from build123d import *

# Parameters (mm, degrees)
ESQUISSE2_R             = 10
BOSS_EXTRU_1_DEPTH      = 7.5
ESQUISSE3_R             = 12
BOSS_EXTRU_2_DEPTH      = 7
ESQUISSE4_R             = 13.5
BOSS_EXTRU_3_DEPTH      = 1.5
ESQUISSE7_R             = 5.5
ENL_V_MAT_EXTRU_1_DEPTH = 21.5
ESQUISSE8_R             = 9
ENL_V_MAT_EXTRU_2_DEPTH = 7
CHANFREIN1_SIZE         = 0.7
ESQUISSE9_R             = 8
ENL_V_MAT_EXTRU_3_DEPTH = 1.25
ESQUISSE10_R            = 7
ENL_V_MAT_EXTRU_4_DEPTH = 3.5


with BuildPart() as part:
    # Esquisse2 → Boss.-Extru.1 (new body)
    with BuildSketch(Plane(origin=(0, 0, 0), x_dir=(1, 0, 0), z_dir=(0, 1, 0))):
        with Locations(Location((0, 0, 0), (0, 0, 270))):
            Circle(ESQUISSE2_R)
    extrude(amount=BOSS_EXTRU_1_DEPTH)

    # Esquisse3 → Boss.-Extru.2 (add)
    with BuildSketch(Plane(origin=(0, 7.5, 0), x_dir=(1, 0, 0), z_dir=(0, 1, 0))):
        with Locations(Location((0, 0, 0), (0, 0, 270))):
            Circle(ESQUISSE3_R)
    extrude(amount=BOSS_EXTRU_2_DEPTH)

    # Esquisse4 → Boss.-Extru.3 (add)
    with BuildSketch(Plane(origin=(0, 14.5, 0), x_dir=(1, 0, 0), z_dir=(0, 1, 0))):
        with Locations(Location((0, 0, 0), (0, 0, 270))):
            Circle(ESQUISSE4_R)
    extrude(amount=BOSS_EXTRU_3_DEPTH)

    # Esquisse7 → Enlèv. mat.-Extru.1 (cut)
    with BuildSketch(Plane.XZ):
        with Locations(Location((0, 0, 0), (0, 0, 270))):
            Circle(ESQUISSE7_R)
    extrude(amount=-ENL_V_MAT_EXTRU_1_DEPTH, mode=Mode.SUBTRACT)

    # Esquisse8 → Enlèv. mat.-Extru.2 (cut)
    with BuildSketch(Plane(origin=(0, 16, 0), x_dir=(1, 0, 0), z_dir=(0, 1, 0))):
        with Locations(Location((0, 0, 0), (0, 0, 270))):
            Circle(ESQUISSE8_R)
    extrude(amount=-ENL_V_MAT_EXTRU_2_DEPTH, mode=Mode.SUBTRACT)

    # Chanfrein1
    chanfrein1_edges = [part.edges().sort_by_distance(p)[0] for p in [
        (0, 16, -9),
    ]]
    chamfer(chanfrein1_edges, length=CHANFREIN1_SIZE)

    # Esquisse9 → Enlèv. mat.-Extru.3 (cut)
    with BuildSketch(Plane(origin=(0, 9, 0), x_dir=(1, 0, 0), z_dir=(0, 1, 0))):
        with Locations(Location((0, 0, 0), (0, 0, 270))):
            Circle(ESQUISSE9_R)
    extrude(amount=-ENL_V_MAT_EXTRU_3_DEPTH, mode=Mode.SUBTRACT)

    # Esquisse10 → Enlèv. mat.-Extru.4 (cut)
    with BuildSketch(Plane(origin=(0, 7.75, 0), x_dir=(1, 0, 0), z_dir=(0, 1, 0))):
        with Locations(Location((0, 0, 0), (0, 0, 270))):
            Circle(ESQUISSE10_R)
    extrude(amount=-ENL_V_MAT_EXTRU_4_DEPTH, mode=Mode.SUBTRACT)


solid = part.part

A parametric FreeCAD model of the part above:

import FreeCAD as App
import Part
import Sketcher

V = App.Vector
Q = App.Units.Quantity


def edges_at(feature, points):
    """Names of the edges that pass closest to the given points."""
    edges = feature.Shape.Edges
    near = lambda p: min(range(len(edges)), key=lambda i: edges[i].distToShape(Part.Vertex(*p))[0])
    return sorted({f"Edge{near(p) + 1}" for p in points})

doc = App.newDocument("Part")
body = doc.addObject("PartDesign::Body", "Body")

# Sketch on XZ plane
sketch1 = body.newObject("Sketcher::SketchObject", "Sketch")
sketch1.AttachmentSupport = (doc.getObject("XZ_Plane"), [""])
sketch1.MapMode = "FlatFace"
sketch1.addGeometry(Part.Circle(V(0, 0, 0), V(0, 0, 1), 10), False)
sketch1.addConstraint(Sketcher.Constraint("Coincident", 0, 3, -1, 1))
sketch1.addConstraint(Sketcher.Constraint("Diameter", 0, Q("20 mm")))
pad1 = body.newObject("PartDesign::Pad", "Pad")
pad1.Profile = sketch1
pad1.Length = 7.5
pad1.Reversed = True

# Sketch on XZ plane
sketch2 = body.newObject("Sketcher::SketchObject", "Sketch001")
sketch2.AttachmentSupport = (doc.getObject("XZ_Plane"), [""])
sketch2.MapMode = "FlatFace"
sketch2.AttachmentOffset = App.Placement(V(0, 0, -7.5), App.Rotation())
sketch2.addGeometry(Part.Circle(V(0, 0, 0), V(0, 0, 1), 12), False)
sketch2.addConstraint(Sketcher.Constraint("Coincident", 0, 3, -1, 1))
sketch2.addConstraint(Sketcher.Constraint("Diameter", 0, Q("24 mm")))
pad2 = body.newObject("PartDesign::Pad", "Pad001")
pad2.Profile = sketch2
pad2.Length = 7
pad2.Reversed = True

# Sketch on XZ plane
sketch3 = body.newObject("Sketcher::SketchObject", "Sketch002")
sketch3.AttachmentSupport = (doc.getObject("XZ_Plane"), [""])
sketch3.MapMode = "FlatFace"
sketch3.AttachmentOffset = App.Placement(V(0, 0, -14.5), App.Rotation())
sketch3.addGeometry(Part.Circle(V(0, 0, 0), V(0, 0, 1), 13.5), False)
sketch3.addConstraint(Sketcher.Constraint("Coincident", 0, 3, -1, 1))
sketch3.addConstraint(Sketcher.Constraint("Diameter", 0, Q("27 mm")))
pad3 = body.newObject("PartDesign::Pad", "Pad002")
pad3.Profile = sketch3
pad3.Length = 1.5
pad3.Reversed = True

# Sketch on XZ plane
sketch4 = body.newObject("Sketcher::SketchObject", "Sketch003")
sketch4.AttachmentSupport = (doc.getObject("XZ_Plane"), [""])
sketch4.MapMode = "FlatFace"
sketch4.addGeometry(Part.Circle(V(0, 0, 0), V(0, 0, 1), 5.5), False)
sketch4.addConstraint(Sketcher.Constraint("Coincident", 0, 3, -1, 1))
sketch4.addConstraint(Sketcher.Constraint("Diameter", 0, Q("11 mm")))
pocket1 = body.newObject("PartDesign::Pocket", "Pocket")
pocket1.Profile = sketch4
pocket1.Length = 21.5

# Sketch on XZ plane
sketch5 = body.newObject("Sketcher::SketchObject", "Sketch004")
sketch5.AttachmentSupport = (doc.getObject("XZ_Plane"), [""])
sketch5.MapMode = "FlatFace"
sketch5.AttachmentOffset = App.Placement(V(0, 0, -16), App.Rotation())
sketch5.addGeometry(Part.Circle(V(0, 0, 0), V(0, 0, 1), 9), False)
sketch5.addConstraint(Sketcher.Constraint("Coincident", 0, 3, -1, 1))
sketch5.addConstraint(Sketcher.Constraint("Diameter", 0, Q("18 mm")))
pocket2 = body.newObject("PartDesign::Pocket", "Pocket001")
pocket2.Profile = sketch5
pocket2.Length = 7
pocket2.Reversed = True
doc.recompute()

chamfer = body.newObject("PartDesign::Chamfer", "Chamfer")
chamfer.Base = (pocket2, edges_at(pocket2, [(0, 16, -9)]))
chamfer.Size = 0.7

# Sketch on XZ plane
sketch6 = body.newObject("Sketcher::SketchObject", "Sketch005")
sketch6.AttachmentSupport = (doc.getObject("XZ_Plane"), [""])
sketch6.MapMode = "FlatFace"
sketch6.AttachmentOffset = App.Placement(V(0, 0, -9), App.Rotation())
sketch6.addGeometry(Part.Circle(V(0, 0, 0), V(0, 0, 1), 8), False)
sketch6.addConstraint(Sketcher.Constraint("Coincident", 0, 3, -1, 1))
sketch6.addConstraint(Sketcher.Constraint("Diameter", 0, Q("16 mm")))
pocket3 = body.newObject("PartDesign::Pocket", "Pocket002")
pocket3.Profile = sketch6
pocket3.Length = 1.25
pocket3.Reversed = True

# Sketch on XZ plane
sketch7 = body.newObject("Sketcher::SketchObject", "Sketch006")
sketch7.AttachmentSupport = (doc.getObject("XZ_Plane"), [""])
sketch7.MapMode = "FlatFace"
sketch7.AttachmentOffset = App.Placement(V(0, 0, -7.75), App.Rotation())
sketch7.addGeometry(Part.Circle(V(0, 0, 0), V(0, 0, 1), 7), False)
sketch7.addConstraint(Sketcher.Constraint("Coincident", 0, 3, -1, 1))
sketch7.addConstraint(Sketcher.Constraint("Diameter", 0, Q("14 mm")))
pocket4 = body.newObject("PartDesign::Pocket", "Pocket003")
pocket4.Profile = sketch7
pocket4.Length = 3.5
pocket4.Reversed = True

doc.recompute()
